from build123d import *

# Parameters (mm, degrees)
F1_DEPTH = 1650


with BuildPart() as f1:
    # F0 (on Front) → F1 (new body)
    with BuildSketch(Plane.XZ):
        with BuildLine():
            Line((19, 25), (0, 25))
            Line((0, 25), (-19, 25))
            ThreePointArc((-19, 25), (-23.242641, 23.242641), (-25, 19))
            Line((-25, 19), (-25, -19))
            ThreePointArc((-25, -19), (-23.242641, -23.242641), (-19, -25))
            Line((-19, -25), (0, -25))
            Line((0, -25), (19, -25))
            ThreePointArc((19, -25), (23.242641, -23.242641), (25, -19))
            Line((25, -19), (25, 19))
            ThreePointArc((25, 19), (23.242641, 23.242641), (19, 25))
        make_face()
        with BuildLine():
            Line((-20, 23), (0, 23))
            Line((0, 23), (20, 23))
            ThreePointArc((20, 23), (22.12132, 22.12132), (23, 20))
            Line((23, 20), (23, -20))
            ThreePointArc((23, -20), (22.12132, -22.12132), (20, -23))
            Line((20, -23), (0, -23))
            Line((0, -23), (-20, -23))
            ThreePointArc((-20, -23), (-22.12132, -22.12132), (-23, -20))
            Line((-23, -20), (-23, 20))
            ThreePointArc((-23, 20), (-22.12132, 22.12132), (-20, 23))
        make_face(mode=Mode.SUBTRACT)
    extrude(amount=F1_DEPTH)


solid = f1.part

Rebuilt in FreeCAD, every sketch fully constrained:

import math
import FreeCAD as App
import Part
import Sketcher
from FreeCAD import Vector
Q = App.Units.Quantity

doc = App.newDocument("Part")
body = doc.addObject("PartDesign::Body", "Body")

# Sketch on XZ plane
sketch1 = body.newObject("Sketcher::SketchObject", "Sketch")
sketch1.AttachmentSupport = (doc.getObject("XZ_Plane"), [""])
sketch1.MapMode = "FlatFace"
sketch1.addGeometry([
    Part.LineSegment(Vector(19, 25, 0), Vector(-19, 25, 0)),  # 0
    Part.ArcOfCircle(Part.Circle(Vector(-19, 19, 0), Vector(0, 0, 1), 6), math.radians(90), math.radians(180)),  # 1
    Part.LineSegment(Vector(-25, 19, 0), Vector(-25, -19, 0)),  # 2
    Part.ArcOfCircle(Part.Circle(Vector(-19, -19, 0), Vector(0, 0, 1), 6), math.radians(180), math.radians(270)),  # 3
    Part.LineSegment(Vector(-19, -25, 0), Vector(19, -25, 0)),  # 4
    Part.ArcOfCircle(Part.Circle(Vector(19, -19, 0), Vector(0, 0, 1), 6), math.radians(-90), math.radians(0)),  # 5
    Part.LineSegment(Vector(25, -19, 0), Vector(25, 19, 0)),  # 6
    Part.ArcOfCircle(Part.Circle(Vector(19, 19, 0), Vector(0, 0, 1), 6), math.radians(0), math.radians(90)),  # 7
    Part.ArcOfCircle(Part.Circle(Vector(-20, 20, 0), Vector(0, 0, 1), 3), math.radians(90), math.radians(180)),  # 8
    Part.LineSegment(Vector(-20, 23, 0), Vector(20, 23, 0)),  # 9
    Part.ArcOfCircle(Part.Circle(Vector(20, 20, 0), Vector(0, 0, 1), 3), math.radians(0), math.radians(90)),  # 10
    Part.LineSegment(Vector(23, 20, 0), Vector(23, -20, 0)),  # 11
    Part.ArcOfCircle(Part.Circle(Vector(20, -20, 0), Vector(0, 0, 1), 3), math.radians(-90), math.radians(0)),  # 12
    Part.LineSegment(Vector(20, -23, 0), Vector(-20, -23, 0)),  # 13
    Part.ArcOfCircle(Part.Circle(Vector(-20, -20, 0), Vector(0, 0, 1), 3), math.radians(-180), math.radians(-90)),  # 14
    Part.LineSegment(Vector(-23, -20, 0), Vector(-23, 20, 0)),  # 15
], False)
sketch1.addConstraint([
    Sketcher.Constraint("Tangent", 0, 2, 1, 1),
    Sketcher.Constraint("Tangent", 1, 2, 2, 1),
    Sketcher.Constraint("Tangent", 2, 2, 3, 1),
    Sketcher.Constraint("Tangent", 3, 2, 4, 1),
    Sketcher.Constraint("Tangent", 4, 2, 5, 1),
    Sketcher.Constraint("Tangent", 5, 2, 6, 1),
    Sketcher.Constraint("Tangent", 6, 2, 7, 1),
    Sketcher.Constraint("Tangent", 7, 2, 0, 1),
    Sketcher.Constraint("Tangent", 8, 1, 9, 1),
    Sketcher.Constraint("Tangent", 9, 2, 10, 2),
    Sketcher.Constraint("Tangent", 10, 1, 11, 1),
    Sketcher.Constraint("Tangent", 11, 2, 12, 2),
    Sketcher.Constraint("Tangent", 12, 1, 13, 1),
    Sketcher.Constraint("Tangent", 13, 2, 14, 2),
    Sketcher.Constraint("Tangent", 14, 1, 15, 1),
    Sketcher.Constraint("Tangent", 15, 2, 8, 2),
    Sketcher.Constraint("Horizontal", 0),
    Sketcher.Constraint("Vertical", 2),
    Sketcher.Constraint("Horizontal", 4),
    Sketcher.Constraint("Vertical", 6),
    Sketcher.Constraint("Horizontal", 9),
    Sketcher.Constraint("Vertical", 11),
    Sketcher.Constraint("Horizontal", 13),
    Sketcher.Constraint("Vertical", 15),
    Sketcher.Constraint("Equal", 1, 3),
    Sketcher.Constraint("Equal", 3, 5),
    Sketcher.Constraint("Equal", 5, 7),
    Sketcher.Constraint("Equal", 8, 10),
    Sketcher.Constraint("Equal", 10, 12),
    Sketcher.Constraint("Equal", 12, 14),
    Sketcher.Constraint("Symmetric", 1, 3, 5, 3, -1, 1),
    Sketcher.Constraint("Symmetric", 8, 3, 12, 3, -1, 1),
    Sketcher.Constraint("Equal", 4, 2),
    Sketcher.Constraint("Equal", 13, 11),
    Sketcher.Constraint("Radius", 1, Q("5.999999 mm")),
    Sketcher.Constraint("Radius", 8, Q("3.000001 mm")),
    Sketcher.Constraint("DistanceX", 0, 2, 0, 1, Q("38 mm")),
    Sketcher.Constraint("DistanceX", 9, 1, 9, 2, Q("40 mm")),
])
pad1 = body.newObject("PartDesign::Pad", "Pad")
pad1.Profile = sketch1
pad1.Length = 1650

doc.recompute()
